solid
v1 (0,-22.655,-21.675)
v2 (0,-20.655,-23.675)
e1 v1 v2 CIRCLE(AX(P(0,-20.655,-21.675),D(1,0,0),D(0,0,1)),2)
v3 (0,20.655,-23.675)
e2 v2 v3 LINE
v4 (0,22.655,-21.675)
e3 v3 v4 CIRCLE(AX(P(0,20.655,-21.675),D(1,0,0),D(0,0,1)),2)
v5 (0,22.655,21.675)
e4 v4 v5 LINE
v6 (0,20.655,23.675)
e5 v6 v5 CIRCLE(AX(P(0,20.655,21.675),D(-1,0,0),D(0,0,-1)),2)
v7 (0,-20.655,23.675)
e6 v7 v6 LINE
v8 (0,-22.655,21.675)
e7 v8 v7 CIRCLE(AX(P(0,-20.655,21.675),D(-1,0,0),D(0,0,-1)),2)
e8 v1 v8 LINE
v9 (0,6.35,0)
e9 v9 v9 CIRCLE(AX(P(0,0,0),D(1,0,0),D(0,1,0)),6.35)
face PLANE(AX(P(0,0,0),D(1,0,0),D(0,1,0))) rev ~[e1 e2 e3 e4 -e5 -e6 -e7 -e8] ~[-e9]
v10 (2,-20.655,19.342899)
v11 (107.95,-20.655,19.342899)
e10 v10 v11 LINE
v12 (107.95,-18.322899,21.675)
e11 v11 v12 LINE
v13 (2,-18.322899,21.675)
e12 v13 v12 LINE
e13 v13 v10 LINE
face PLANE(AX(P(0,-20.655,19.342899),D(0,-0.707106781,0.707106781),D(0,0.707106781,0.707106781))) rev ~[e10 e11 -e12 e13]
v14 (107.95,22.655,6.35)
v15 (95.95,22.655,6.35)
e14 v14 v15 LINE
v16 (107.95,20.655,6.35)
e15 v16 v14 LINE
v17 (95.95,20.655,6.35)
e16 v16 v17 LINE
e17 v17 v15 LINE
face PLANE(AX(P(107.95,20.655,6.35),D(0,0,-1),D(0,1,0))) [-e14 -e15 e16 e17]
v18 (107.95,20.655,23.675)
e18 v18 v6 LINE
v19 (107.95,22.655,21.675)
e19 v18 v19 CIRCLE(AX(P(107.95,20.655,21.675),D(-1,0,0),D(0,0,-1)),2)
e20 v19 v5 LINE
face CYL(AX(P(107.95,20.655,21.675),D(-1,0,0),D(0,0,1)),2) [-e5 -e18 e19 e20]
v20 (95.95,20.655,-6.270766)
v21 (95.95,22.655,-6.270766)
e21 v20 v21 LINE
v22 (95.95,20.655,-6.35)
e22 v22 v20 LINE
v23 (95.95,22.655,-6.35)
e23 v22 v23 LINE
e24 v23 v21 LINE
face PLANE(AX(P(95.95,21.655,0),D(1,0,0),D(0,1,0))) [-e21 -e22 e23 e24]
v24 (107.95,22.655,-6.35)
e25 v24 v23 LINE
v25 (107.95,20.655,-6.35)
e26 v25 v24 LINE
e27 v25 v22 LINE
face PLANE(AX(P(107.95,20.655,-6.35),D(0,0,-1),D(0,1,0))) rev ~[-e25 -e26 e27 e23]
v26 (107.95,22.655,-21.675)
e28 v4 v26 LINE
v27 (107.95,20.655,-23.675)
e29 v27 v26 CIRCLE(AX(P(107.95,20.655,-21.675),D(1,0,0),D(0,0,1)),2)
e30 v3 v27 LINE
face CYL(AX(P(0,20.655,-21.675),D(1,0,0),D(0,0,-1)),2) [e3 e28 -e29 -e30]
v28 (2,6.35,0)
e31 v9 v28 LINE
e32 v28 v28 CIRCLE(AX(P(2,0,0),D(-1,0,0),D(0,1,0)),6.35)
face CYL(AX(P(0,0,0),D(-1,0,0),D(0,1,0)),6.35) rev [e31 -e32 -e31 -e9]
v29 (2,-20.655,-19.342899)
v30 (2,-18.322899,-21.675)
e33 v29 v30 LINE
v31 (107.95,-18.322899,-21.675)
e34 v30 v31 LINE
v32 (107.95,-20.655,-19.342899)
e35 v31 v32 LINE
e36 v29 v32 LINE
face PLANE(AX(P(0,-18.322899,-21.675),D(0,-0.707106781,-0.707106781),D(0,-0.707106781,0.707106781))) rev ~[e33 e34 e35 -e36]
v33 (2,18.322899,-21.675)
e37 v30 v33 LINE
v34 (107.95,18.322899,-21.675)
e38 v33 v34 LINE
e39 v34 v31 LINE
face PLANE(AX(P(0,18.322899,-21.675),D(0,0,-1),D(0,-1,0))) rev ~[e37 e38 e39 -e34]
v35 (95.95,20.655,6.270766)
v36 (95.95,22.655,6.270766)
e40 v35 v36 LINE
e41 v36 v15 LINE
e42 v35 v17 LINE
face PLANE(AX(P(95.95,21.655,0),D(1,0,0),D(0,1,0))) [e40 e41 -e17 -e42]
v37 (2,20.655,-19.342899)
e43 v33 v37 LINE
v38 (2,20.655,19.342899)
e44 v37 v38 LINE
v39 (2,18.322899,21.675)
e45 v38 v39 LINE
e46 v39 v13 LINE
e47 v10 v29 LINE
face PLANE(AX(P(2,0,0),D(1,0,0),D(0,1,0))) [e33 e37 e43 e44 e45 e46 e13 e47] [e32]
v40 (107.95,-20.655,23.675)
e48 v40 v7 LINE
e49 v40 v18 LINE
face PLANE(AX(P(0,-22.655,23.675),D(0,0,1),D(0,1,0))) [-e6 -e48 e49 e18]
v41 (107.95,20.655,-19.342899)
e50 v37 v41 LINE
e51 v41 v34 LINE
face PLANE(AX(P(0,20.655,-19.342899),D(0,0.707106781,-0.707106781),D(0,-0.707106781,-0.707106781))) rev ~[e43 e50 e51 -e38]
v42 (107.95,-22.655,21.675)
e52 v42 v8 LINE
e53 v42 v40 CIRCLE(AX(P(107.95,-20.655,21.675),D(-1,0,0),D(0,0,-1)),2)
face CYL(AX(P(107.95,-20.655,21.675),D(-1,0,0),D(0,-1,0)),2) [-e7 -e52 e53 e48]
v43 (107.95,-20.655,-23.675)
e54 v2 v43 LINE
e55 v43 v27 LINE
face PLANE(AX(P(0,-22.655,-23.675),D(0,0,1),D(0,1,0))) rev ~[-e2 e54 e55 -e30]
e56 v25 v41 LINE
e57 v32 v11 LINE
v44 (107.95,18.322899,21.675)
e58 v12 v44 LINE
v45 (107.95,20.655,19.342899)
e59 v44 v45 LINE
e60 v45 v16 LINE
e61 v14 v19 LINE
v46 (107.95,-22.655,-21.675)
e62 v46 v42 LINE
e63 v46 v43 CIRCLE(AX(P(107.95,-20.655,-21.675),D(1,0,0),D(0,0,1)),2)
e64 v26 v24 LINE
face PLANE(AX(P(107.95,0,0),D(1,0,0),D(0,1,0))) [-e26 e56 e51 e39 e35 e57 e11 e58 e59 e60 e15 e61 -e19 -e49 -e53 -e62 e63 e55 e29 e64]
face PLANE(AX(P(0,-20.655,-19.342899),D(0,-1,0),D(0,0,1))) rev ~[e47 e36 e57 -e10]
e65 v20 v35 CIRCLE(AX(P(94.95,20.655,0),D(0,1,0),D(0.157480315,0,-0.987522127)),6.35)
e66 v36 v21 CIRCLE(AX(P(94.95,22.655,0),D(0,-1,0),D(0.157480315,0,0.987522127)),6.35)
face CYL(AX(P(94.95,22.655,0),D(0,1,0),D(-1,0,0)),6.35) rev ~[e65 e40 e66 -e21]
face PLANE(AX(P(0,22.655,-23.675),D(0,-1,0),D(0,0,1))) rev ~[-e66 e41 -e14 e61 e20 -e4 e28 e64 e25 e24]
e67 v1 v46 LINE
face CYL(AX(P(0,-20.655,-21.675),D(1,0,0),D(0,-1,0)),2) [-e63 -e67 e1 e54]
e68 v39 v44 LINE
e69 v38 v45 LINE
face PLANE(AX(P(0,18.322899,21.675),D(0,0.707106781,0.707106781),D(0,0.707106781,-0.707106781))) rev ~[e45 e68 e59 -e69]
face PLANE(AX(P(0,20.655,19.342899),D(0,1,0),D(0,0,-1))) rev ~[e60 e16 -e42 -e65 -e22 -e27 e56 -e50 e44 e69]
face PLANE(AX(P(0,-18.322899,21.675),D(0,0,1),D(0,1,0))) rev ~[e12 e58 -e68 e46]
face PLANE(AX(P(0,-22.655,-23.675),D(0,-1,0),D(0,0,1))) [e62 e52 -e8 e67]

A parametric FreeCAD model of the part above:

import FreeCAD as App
import Part
import Sketcher

V = App.Vector


def edges_at(feature, points):
    """Names of the edges that pass closest to the given points."""
    edges = feature.Shape.Edges
    near = lambda p: min(range(len(edges)), key=lambda i: edges[i].distToShape(Part.Vertex(*p))[0])
    return sorted({f"Edge{near(p) + 1}" for p in points})

doc = App.newDocument("Part")
body = doc.addObject("PartDesign::Body", "Body")

sketch1 = body.newObject("Sketcher::SketchObject", "Sketch")
sketch1.AttachmentSupport = (doc.getObject("YZ_Plane"), [""])
sketch1.MapMode = "FlatFace"
sketch1.addGeometry(Part.LineSegment(V(-22.655, 23.675, 0), V(-22.655, -23.675, 0)), False)
sketch1.addGeometry(Part.LineSegment(V(-22.655, -23.675, 0), V(22.655, -23.675, 0)), False)
sketch1.addGeometry(Part.LineSegment(V(22.655, -23.675, 0), V(22.655, 23.675, 0)), False)
sketch1.addGeometry(Part.LineSegment(V(22.655, 23.675, 0), V(-22.655, 23.675, 0)), False)
sketch1.addConstraint(Sketcher.Constraint("Coincident", 0, 2, 1, 1))
sketch1.addConstraint(Sketcher.Constraint("Coincident", 1, 2, 2, 1))
sketch1.addConstraint(Sketcher.Constraint("Coincident", 2, 2, 3, 1))
sketch1.addConstraint(Sketcher.Constraint("Coincident", 3, 2, 0, 1))
sketch1.addConstraint(Sketcher.Constraint("Vertical", 0))
sketch1.addConstraint(Sketcher.Constraint("Horizontal", 1))
sketch1.addConstraint(Sketcher.Constraint("Vertical", 2))
sketch1.addConstraint(Sketcher.Constraint("Horizontal", 3))
sketch1.addConstraint(Sketcher.Constraint("Symmetric", 0, 2, 2, 2, -1, 1))
sketch1.addConstraint(Sketcher.Constraint("DistanceX", 1, 1, 1, 2, 45.31))
sketch1.addConstraint(Sketcher.Constraint("DistanceY", 0, 2, 0, 1, 47.35))
pad1 = body.newObject("PartDesign::Pad", "Pad")
pad1.Profile = sketch1
pad1.Length = 2

sketch2 = body.newObject("Sketcher::SketchObject", "Sketch001")
sketch2.AttachmentSupport = (doc.getObject("YZ_Plane"), [""])
sketch2.MapMode = "FlatFace"
sketch2.addGeometry(Part.LineSegment(V(-22.655, 23.675, 0), V(-22.655, -23.675, 0)), False)
sketch2.addGeometry(Part.LineSegment(V(-22.655, -23.675, 0), V(22.655, -23.675, 0)), False)
sketch2.addGeometry(Part.LineSegment(V(22.655, -23.675, 0), V(22.655, 23.675, 0)), False)
sketch2.addGeometry(Part.LineSegment(V(22.655, 23.675, 0), V(-22.655, 23.675, 0)), False)
sketch2.addGeometry(Part.LineSegment(V(-18.322899, 21.675, 0), V(18.322899, 21.675, 0)), False)
sketch2.addGeometry(Part.LineSegment(V(18.322899, 21.675, 0), V(20.655, 19.342899, 0)), False)
sketch2.addGeometry(Part.LineSegment(V(20.655, 19.342899, 0), V(20.655, -19.342899, 0)), False)
sketch2.addGeometry(Part.LineSegment(V(20.655, -19.342899, 0), V(18.322899, -21.675, 0)), False)
sketch2.addGeometry(Part.LineSegment(V(18.322899, -21.675, 0), V(-18.322899, -21.675, 0)), False)
sketch2.addGeometry(Part.LineSegment(V(-18.322899, -21.675, 0), V(-20.655, -19.342899, 0)), False)
sketch2.addGeometry(Part.LineSegment(V(-20.655, -19.342899, 0), V(-20.655, 19.342899, 0)), False)
sketch2.addGeometry(Part.LineSegment(V(-20.655, 19.342899, 0), V(-18.322899, 21.675, 0)), False)
sketch2.addConstraint(Sketcher.Constraint("Coincident", 0, 2, 1, 1))
sketch2.addConstraint(Sketcher.Constraint("Coincident", 1, 2, 2, 1))
sketch2.addConstraint(Sketcher.Constraint("Coincident", 2, 2, 3, 1))
sketch2.addConstraint(Sketcher.Constraint("Coincident", 3, 2, 0, 1))
sketch2.addConstraint(Sketcher.Constraint("Coincident", 4, 2, 5, 1))
sketch2.addConstraint(Sketcher.Constraint("Coincident", 5, 2, 6, 1))
sketch2.addConstraint(Sketcher.Constraint("Coincident", 6, 2, 7, 1))
sketch2.addConstraint(Sketcher.Constraint("Coincident", 7, 2, 8, 1))
sketch2.addConstraint(Sketcher.Constraint("Coincident", 8, 2, 9, 1))
sketch2.addConstraint(Sketcher.Constraint("Coincident", 9, 2, 10, 1))
sketch2.addConstraint(Sketcher.Constraint("Coincident", 10, 2, 11, 1))
sketch2.addConstraint(Sketcher.Constraint("Coincident", 11, 2, 4, 1))
sketch2.addConstraint(Sketcher.Constraint("Vertical", 0))
sketch2.addConstraint(Sketcher.Constraint("Horizontal", 1))
sketch2.addConstraint(Sketcher.Constraint("Vertical", 2))
sketch2.addConstraint(Sketcher.Constraint("Horizontal", 3))
sketch2.addConstraint(Sketcher.Constraint("Horizontal", 4))
sketch2.addConstraint(Sketcher.Constraint("Vertical", 6))
sketch2.addConstraint(Sketcher.Constraint("Horizontal", 8))
sketch2.addConstraint(Sketcher.Constraint("Vertical", 10))
sketch2.addConstraint(Sketcher.Constraint("Symmetric", 0, 2, 2, 2, -1, 1))
sketch2.addConstraint(Sketcher.Constraint("Symmetric", 4, 2, 8, 2, -1, 1))
sketch2.addConstraint(Sketcher.Constraint("Symmetric", 5, 2, 9, 2, -1, 1))
sketch2.addConstraint(Sketcher.Constraint("Perpendicular", 5, 7))
sketch2.addConstraint(Sketcher.Constraint("Perpendicular", 9, 11))
sketch2.addConstraint(Sketcher.Constraint("Horizontal", 6, 2, 9, 2))
sketch2.addConstraint(Sketcher.Constraint("Horizontal", 5, 2, 10, 2))
sketch2.addConstraint(Sketcher.Constraint("Vertical", 4, 2, 7, 2))
sketch2.addConstraint(Sketcher.Constraint("DistanceY", 4, 2, 2, 2, 2.0))
sketch2.addConstraint(Sketcher.Constraint("DistanceX", 5, 2, 2, 2, 2.0))
sketch2.addConstraint(Sketcher.Constraint("DistanceX", 1, 1, 1, 2, 45.31))
sketch2.addConstraint(Sketcher.Constraint("DistanceY", 0, 2, 0, 1, 47.35))
sketch2.addConstraint(Sketcher.Constraint("DistanceX", 4, 1, 4, 2, 36.645799))
pad2 = body.newObject("PartDesign::Pad", "Pad001")
pad2.Profile = sketch2
pad2.Length = 107.95

sketch3 = body.newObject("Sketcher::SketchObject", "Sketch002")
sketch3.AttachmentSupport = (doc.getObject("YZ_Plane"), [""])
sketch3.MapMode = "FlatFace"
sketch3.addGeometry(Part.Circle(V(0, 0, 0), V(0, 0, 1), 6.35), False)
sketch3.addConstraint(Sketcher.Constraint("Coincident", 0, 3, -1, 1))
sketch3.addConstraint(Sketcher.Constraint("Diameter", 0, 12.7))
pocket1 = body.newObject("PartDesign::Pocket", "Pocket")
pocket1.Profile = sketch3
pocket1.Type = "ThroughAll"
pocket1.Reversed = True

sketch4 = body.newObject("Sketcher::SketchObject", "Sketch003")
sketch4.AttachmentSupport = (doc.getObject("XZ_Plane"), [""])
sketch4.MapMode = "FlatFace"
sketch4.AttachmentOffset = App.Placement(V(0, 0, -22.655), App.Rotation())
sketch4.addGeometry(Part.Circle(V(94.95, 0, 0), V(0, 0, 1), 6.35), False)
sketch4.addConstraint(Sketcher.Constraint("PointOnObject", 0, 3, -1))
sketch4.addConstraint(Sketcher.Constraint("Diameter", 0, 12.7))
sketch4.addConstraint(Sketcher.Constraint("DistanceX", -1, 1, 0, 3, 94.95))
pocket2 = body.newObject("PartDesign::Pocket", "Pocket001")
pocket2.Profile = sketch4
pocket2.Length = 25
pocket2.Reversed = True
doc.recompute()

fillet = body.newObject("PartDesign::Fillet", "Fillet")
fillet.Base = (pocket2, edges_at(pocket2, [
    (53.975, -22.655, 23.675),
    (53.975, 22.655, 23.675),
    (53.975, 22.655, -23.675),
    (53.975, -22.655, -23.675),
]))
fillet.Radius = 2

sketch5 = body.newObject("Sketcher::SketchObject", "Sketch004")
sketch5.AttachmentSupport = (doc.getObject("YZ_Plane"), [""])
sketch5.MapMode = "FlatFace"
sketch5.AttachmentOffset = App.Placement(V(0, 0, 107.95), App.Rotation())
sketch5.addGeometry(Part.LineSegment(V(20.655, 6.35, 0), V(20.655, -6.35, 0)), False)
sketch5.addGeometry(Part.LineSegment(V(20.655, -6.35, 0), V(22.655, -6.35, 0)), False)
sketch5.addGeometry(Part.LineSegment(V(22.655, -6.35, 0), V(22.655, 6.35, 0)), False)
sketch5.addGeometry(Part.LineSegment(V(22.655, 6.35, 0), V(20.655, 6.35, 0)), False)
sketch5.addConstraint(Sketcher.Constraint("Coincident", 0, 2, 1, 1))
sketch5.addConstraint(Sketcher.Constraint("Coincident", 1, 2, 2, 1))
sketch5.addConstraint(Sketcher.Constraint("Coincident", 2, 2, 3, 1))
sketch5.addConstraint(Sketcher.Constraint("Coincident", 3, 2, 0, 1))
sketch5.addConstraint(Sketcher.Constraint("Vertical", 0))
sketch5.addConstraint(Sketcher.Constraint("Horizontal", 1))
sketch5.addConstraint(Sketcher.Constraint("Vertical", 2))
sketch5.addConstraint(Sketcher.Constraint("Horizontal", 3))
sketch5.addConstraint(Sketcher.Constraint("DistanceX", 1, 1, 1, 2, 2.0))
sketch5.addConstraint(Sketcher.Constraint("DistanceY", 0, 2, 0, 1, 12.7))
sketch5.addConstraint(Sketcher.Constraint("DistanceY", 0, 2, -1, 1, 6.35))
sketch5.addConstraint(Sketcher.Constraint("DistanceX", -1, 1, 0, 2, 20.655))
pocket3 = body.newObject("PartDesign::Pocket", "Pocket002")
pocket3.Profile = sketch5
pocket3.Length = 12

doc.recompute()
